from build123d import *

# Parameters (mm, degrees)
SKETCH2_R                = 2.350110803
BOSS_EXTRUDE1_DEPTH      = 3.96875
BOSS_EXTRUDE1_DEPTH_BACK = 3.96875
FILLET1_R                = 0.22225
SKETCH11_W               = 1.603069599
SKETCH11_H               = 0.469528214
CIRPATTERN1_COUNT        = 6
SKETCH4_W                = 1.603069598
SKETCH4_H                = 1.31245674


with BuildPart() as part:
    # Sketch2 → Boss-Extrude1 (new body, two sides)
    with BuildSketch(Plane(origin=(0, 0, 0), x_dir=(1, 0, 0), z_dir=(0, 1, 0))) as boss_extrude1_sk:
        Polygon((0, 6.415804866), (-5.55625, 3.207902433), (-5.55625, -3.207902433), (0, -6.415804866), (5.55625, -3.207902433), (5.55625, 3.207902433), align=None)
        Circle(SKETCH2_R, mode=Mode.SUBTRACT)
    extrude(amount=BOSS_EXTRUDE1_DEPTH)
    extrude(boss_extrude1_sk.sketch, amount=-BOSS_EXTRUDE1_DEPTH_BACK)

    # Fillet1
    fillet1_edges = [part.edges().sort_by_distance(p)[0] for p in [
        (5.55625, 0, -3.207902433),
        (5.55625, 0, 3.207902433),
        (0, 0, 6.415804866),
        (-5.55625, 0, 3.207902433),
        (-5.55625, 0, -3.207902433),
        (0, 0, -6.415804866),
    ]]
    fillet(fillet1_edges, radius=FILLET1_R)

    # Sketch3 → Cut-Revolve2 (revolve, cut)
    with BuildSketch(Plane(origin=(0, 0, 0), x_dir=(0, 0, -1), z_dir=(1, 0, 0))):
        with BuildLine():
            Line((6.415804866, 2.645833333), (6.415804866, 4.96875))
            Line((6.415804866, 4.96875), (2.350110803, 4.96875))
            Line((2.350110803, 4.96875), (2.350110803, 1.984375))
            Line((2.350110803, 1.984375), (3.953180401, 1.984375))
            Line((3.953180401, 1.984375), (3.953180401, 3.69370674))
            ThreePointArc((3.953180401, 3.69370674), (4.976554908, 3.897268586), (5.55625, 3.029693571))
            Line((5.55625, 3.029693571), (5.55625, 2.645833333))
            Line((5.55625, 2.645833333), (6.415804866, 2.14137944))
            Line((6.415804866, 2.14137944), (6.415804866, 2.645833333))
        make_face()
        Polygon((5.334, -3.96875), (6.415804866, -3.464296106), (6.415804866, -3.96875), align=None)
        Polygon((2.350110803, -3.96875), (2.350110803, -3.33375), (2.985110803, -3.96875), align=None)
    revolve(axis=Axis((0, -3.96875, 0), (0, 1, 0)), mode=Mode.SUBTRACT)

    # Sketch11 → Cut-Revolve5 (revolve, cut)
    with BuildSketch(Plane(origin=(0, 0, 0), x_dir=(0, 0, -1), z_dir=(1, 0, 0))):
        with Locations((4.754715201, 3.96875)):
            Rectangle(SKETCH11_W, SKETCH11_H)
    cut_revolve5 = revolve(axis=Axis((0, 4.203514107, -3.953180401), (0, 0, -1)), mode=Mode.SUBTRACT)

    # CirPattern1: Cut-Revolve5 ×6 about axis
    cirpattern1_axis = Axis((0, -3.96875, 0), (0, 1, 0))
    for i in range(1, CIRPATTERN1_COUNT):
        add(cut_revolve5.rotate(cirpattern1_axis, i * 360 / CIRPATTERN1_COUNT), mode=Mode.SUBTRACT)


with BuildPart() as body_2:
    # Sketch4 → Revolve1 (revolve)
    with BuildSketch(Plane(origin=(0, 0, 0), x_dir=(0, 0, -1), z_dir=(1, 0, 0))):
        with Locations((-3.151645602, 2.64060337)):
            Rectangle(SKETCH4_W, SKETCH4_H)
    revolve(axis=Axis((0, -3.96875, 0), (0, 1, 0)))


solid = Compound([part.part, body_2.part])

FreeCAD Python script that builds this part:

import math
import FreeCAD as App
import Part
import Sketcher

V = App.Vector
Q = App.Units.Quantity


def edges_at(feature, points):
    """Names of the edges that pass closest to the given points."""
    edges = feature.Shape.Edges
    near = lambda p: min(range(len(edges)), key=lambda i: edges[i].distToShape(Part.Vertex(*p))[0])
    return sorted({f"Edge{near(p) + 1}" for p in points})


def add_polygon(sketch, points):
    """Adds a closed chain of lines whose ends are joined by coincident constraints."""
    first, n = sketch.GeometryCount, len(points)
    for a, b in zip(points, points[1:] + points[:1]):
        sketch.addGeometry(Part.LineSegment(App.Vector(*a, 0), App.Vector(*b, 0)), False)
    for i in range(n):
        sketch.addConstraint(Sketcher.Constraint("Coincident", first + i, 2, first + (i + 1) % n, 1))

doc = App.newDocument("Part")
body = doc.addObject("PartDesign::Body", "Body")

# Sketch on XZ plane
sketch1 = body.newObject("Sketcher::SketchObject", "Sketch")
sketch1.AttachmentSupport = (doc.getObject("XZ_Plane"), [""])
sketch1.MapMode = "FlatFace"
add_polygon(sketch1, [(0, -6.4), (-5.6, -3.2), (-5.6, 3.2), (0, 6.4), (5.6, 3.2), (5.6, -3.2)])  # lines 0-5
sketch1.addGeometry(Part.Circle(V(0, 0, 0), V(0, 0, 1), 2.4), False)  # 6
sketch1.addConstraint([
    Sketcher.Constraint("Vertical", 1),
    Sketcher.Constraint("Vertical", 4),
    Sketcher.Constraint("Coincident", 6, 3, -1, 1),
    Sketcher.Constraint("Symmetric", 0, 2, 3, 2, -1, 1),
    Sketcher.Constraint("Symmetric", 2, 2, 5, 2, -1, 1),
    Sketcher.Constraint("PointOnObject", 2, 2, -2),
    Sketcher.Constraint("Parallel", 2, 5),
    Sketcher.Constraint("Horizontal", 1, 2, 3, 2),
    Sketcher.Constraint("Angle", 0, Q("150 deg")),
    Sketcher.Constraint("Diameter", 6, 4.700222),
    Sketcher.Constraint("DistanceX", 0, 2, -1, 1, Q("0.21875 in")),
    Sketcher.Constraint("DistanceY", 1, 1, 1, 2, 6.415805),
])
pad1 = body.newObject("PartDesign::Pad", "Pad")
pad1.Profile = sketch1
pad1.Type = "TwoLengths"
pad1.Length = Q("0.15625 in")
pad1.Length2 = Q("0.15625 in")
pad1.Reversed = True
doc.recompute()

fillet = body.newObject("PartDesign::Fillet", "Fillet")
fillet.Base = (pad1, edges_at(pad1, [
    (5.556, 0, -3.208),
    (5.556, 0, 3.208),
    (0, 0, 6.416),
    (-5.556, 0, 3.208),
    (-5.556, 0, -3.208),
    (0, 0, -6.416),
]))
fillet.Radius = 0.22225

# Sketch on YZ plane
sketch2 = body.newObject("Sketcher::SketchObject", "Sketch001")
sketch2.AttachmentSupport = (doc.getObject("YZ_Plane"), [""])
sketch2.MapMode = "FlatFace"
sketch2.addGeometry(Part.LineSegment(V(4.97, -6.42, 0), V(4.97, -2.35, 0)), False)  # 0
sketch2.addGeometry(Part.LineSegment(V(4.97, -2.35, 0), V(1.98, -2.35, 0)), False)  # 1
sketch2.addGeometry(Part.LineSegment(V(1.98, -2.35, 0), V(1.98, -3.95, 0)), False)  # 2
sketch2.addGeometry(Part.LineSegment(V(1.98, -3.95, 0), V(3.69, -3.95, 0)), False)  # 3
sketch2.addGeometry(Part.ArcOfCircle(Part.Circle(V(3.03, -4.62, 0), V(0, 0, 1), 0.94), math.radians(-90), math.radians(45)), False)  # 4
sketch2.addGeometry(Part.LineSegment(V(3.03, -5.56, 0), V(2.65, -5.56, 0)), False)  # 5
sketch2.addGeometry(Part.LineSegment(V(2.65, -5.56, 0), V(2.14, -6.42, 0)), False)  # 6
sketch2.addGeometry(Part.LineSegment(V(2.14, -6.42, 0), V(4.97, -6.42, 0)), False)  # 7
add_polygon(sketch2, [(-3.46, -6.42), (-3.97, -5.33), (-3.97, -6.42)])  # lines 8-10
add_polygon(sketch2, [(-3.33, -2.35), (-3.97, -2.35), (-3.97, -2.99)])  # lines 11-13
sketch2.addConstraint([
    Sketcher.Constraint("Coincident", 0, 2, 1, 1),
    Sketcher.Constraint("Coincident", 1, 2, 2, 1),
    Sketcher.Constraint("Coincident", 2, 2, 3, 1),
    Sketcher.Constraint("Coincident", 3, 2, 4, 2),
    Sketcher.Constraint("Tangent", 4, 1, 5, 1),
    Sketcher.Constraint("Coincident", 5, 2, 6, 1),
    Sketcher.Constraint("Coincident", 6, 2, 7, 1),
    Sketcher.Constraint("Coincident", 7, 2, 0, 1),
    Sketcher.Constraint("Vertical", 0),
    Sketcher.Constraint("Horizontal", 1),
    Sketcher.Constraint("Vertical", 2),
    Sketcher.Constraint("Horizontal", 3),
    Sketcher.Constraint("Horizontal", 5),
    Sketcher.Constraint("Horizontal", 7),
    Sketcher.Constraint("Vertical", 9),
    Sketcher.Constraint("Horizontal", 10),
    Sketcher.Constraint("Horizontal", 11),
    Sketcher.Constraint("Vertical", 12),
    Sketcher.Constraint("Horizontal", 7, 2, 9, 2),
    Sketcher.Constraint("Horizontal", 1, 2, 11, 2),
    Sketcher.Constraint("Vertical", 9, 2, 11, 2),
    Sketcher.Constraint("Equal", 11, 12),
    Sketcher.Constraint("Angle", 8, Q("115 deg")),
    Sketcher.Constraint("DistanceX", 11, 2, 11, 1, Q("0.025 in")),
    Sketcher.Constraint("DistanceY", 8, 2, -1, 1, Q("0.21 in")),
    Sketcher.Constraint("DistanceX", -1, 1, 1, 2, Q("0.078125 in")),
    Sketcher.Constraint("DistanceY", 4, 1, -1, 1, Q("0.21875 in")),
    Sketcher.Constraint("DistanceX", 8, 2, -1, 1, Q("0.15625 in")),
    Sketcher.Constraint("Radius", 4, 0.939056),
    Sketcher.Constraint("DistanceX", 3, 1, 3, 2, 1.709332),
    Sketcher.Constraint("DistanceX", 5, 2, 5, 1, 0.38386),
    Sketcher.Constraint("DistanceX", 7, 1, 7, 2, 2.827371),
    Sketcher.Constraint("DistanceY", 2, 2, 2, 1, 1.60307),
    Sketcher.Constraint("Distance", 6, 0.996649),
    Sketcher.Constraint("Distance", 8, 1.19364),
    Sketcher.Constraint("DistanceX", 1, 2, 1, 1, 2.984375),
])
groove = body.newObject("PartDesign::Groove", "Groove")
groove.Profile = sketch2
groove.ReferenceAxis = (sketch2, ["H_Axis"])
groove.Angle = 360

# Sketch on YZ plane
sketch3 = body.newObject("Sketcher::SketchObject", "Sketch002")
sketch3.AttachmentSupport = (doc.getObject("YZ_Plane"), [""])
sketch3.MapMode = "FlatFace"
add_polygon(sketch3, [(4.2, -3.95), (3.73, -3.95), (3.73, -5.56), (4.2, -5.56)])  # lines 0-3
sketch3.addGeometry(Part.LineSegment(V(4.2, -3.95, 0), V(4.2, -5.56, 0)), True)  # axis
sketch3.addConstraint([
    Sketcher.Constraint("Horizontal", 0),
    Sketcher.Constraint("Vertical", 1),
    Sketcher.Constraint("Horizontal", 2),
    Sketcher.Constraint("Vertical", 3),
    Sketcher.Constraint("Vertical", 4),
    Sketcher.Constraint("Coincident", 4, 1, 3, 2),
    Sketcher.Constraint("Horizontal", 1, 2, 4, 2),
    Sketcher.Constraint("DistanceY", 1, 2, -1, 1, Q("0.21875 in")),
    Sketcher.Constraint("DistanceX", 0, 2, 0, 1, 0.469528),
    Sketcher.Constraint("DistanceY", 1, 2, 1, 1, 1.60307),
    Sketcher.Constraint("DistanceX", -1, 1, 0, 2, 3.733986),
])
groove2 = body.newObject("PartDesign::Groove", "Groove001")
groove2.Profile = sketch3
groove2.ReferenceAxis = (sketch3, ["Axis0"])
groove2.Angle = 360
doc.recompute()

polarpattern = body.newObject("PartDesign::PolarPattern", "PolarPattern")
polarpattern.Originals = [groove2]
polarpattern.Axis = (doc.getObject("Y_Axis"), [""])
polarpattern.Angle = 360
polarpattern.Occurrences = 6
body.Tip = polarpattern
body2 = doc.addObject("PartDesign::Body", "Body001")

# Sketch on YZ plane
sketch4 = body2.newObject("Sketcher::SketchObject", "Sketch003")
sketch4.AttachmentSupport = (doc.getObject("YZ_Plane001"), [""])
sketch4.MapMode = "FlatFace"
add_polygon(sketch4, [(3.3, 4), (2, 4), (2, 2.4), (3.3, 2.4)])  # lines 0-3
sketch4.addConstraint([
    Sketcher.Constraint("Horizontal", 0),
    Sketcher.Constraint("Vertical", 1),
    Sketcher.Constraint("Horizontal", 2),
    Sketcher.Constraint("Vertical", 3),
    Sketcher.Constraint("DistanceX", -1, 1, 0, 2, Q("0.078125 in")),
    Sketcher.Constraint("DistanceY", 1, 2, 1, 1, 1.60307),
    Sketcher.Constraint("DistanceX", 0, 2, 0, 1, 1.312457),
    Sketcher.Constraint("DistanceY", -1, 1, 0, 2, 3.95318),
])
revolution = body2.newObject("PartDesign::Revolution", "Revolution")
revolution.Profile = sketch4
revolution.ReferenceAxis = (sketch4, ["H_Axis"])
revolution.Angle = 360

doc.recompute()
